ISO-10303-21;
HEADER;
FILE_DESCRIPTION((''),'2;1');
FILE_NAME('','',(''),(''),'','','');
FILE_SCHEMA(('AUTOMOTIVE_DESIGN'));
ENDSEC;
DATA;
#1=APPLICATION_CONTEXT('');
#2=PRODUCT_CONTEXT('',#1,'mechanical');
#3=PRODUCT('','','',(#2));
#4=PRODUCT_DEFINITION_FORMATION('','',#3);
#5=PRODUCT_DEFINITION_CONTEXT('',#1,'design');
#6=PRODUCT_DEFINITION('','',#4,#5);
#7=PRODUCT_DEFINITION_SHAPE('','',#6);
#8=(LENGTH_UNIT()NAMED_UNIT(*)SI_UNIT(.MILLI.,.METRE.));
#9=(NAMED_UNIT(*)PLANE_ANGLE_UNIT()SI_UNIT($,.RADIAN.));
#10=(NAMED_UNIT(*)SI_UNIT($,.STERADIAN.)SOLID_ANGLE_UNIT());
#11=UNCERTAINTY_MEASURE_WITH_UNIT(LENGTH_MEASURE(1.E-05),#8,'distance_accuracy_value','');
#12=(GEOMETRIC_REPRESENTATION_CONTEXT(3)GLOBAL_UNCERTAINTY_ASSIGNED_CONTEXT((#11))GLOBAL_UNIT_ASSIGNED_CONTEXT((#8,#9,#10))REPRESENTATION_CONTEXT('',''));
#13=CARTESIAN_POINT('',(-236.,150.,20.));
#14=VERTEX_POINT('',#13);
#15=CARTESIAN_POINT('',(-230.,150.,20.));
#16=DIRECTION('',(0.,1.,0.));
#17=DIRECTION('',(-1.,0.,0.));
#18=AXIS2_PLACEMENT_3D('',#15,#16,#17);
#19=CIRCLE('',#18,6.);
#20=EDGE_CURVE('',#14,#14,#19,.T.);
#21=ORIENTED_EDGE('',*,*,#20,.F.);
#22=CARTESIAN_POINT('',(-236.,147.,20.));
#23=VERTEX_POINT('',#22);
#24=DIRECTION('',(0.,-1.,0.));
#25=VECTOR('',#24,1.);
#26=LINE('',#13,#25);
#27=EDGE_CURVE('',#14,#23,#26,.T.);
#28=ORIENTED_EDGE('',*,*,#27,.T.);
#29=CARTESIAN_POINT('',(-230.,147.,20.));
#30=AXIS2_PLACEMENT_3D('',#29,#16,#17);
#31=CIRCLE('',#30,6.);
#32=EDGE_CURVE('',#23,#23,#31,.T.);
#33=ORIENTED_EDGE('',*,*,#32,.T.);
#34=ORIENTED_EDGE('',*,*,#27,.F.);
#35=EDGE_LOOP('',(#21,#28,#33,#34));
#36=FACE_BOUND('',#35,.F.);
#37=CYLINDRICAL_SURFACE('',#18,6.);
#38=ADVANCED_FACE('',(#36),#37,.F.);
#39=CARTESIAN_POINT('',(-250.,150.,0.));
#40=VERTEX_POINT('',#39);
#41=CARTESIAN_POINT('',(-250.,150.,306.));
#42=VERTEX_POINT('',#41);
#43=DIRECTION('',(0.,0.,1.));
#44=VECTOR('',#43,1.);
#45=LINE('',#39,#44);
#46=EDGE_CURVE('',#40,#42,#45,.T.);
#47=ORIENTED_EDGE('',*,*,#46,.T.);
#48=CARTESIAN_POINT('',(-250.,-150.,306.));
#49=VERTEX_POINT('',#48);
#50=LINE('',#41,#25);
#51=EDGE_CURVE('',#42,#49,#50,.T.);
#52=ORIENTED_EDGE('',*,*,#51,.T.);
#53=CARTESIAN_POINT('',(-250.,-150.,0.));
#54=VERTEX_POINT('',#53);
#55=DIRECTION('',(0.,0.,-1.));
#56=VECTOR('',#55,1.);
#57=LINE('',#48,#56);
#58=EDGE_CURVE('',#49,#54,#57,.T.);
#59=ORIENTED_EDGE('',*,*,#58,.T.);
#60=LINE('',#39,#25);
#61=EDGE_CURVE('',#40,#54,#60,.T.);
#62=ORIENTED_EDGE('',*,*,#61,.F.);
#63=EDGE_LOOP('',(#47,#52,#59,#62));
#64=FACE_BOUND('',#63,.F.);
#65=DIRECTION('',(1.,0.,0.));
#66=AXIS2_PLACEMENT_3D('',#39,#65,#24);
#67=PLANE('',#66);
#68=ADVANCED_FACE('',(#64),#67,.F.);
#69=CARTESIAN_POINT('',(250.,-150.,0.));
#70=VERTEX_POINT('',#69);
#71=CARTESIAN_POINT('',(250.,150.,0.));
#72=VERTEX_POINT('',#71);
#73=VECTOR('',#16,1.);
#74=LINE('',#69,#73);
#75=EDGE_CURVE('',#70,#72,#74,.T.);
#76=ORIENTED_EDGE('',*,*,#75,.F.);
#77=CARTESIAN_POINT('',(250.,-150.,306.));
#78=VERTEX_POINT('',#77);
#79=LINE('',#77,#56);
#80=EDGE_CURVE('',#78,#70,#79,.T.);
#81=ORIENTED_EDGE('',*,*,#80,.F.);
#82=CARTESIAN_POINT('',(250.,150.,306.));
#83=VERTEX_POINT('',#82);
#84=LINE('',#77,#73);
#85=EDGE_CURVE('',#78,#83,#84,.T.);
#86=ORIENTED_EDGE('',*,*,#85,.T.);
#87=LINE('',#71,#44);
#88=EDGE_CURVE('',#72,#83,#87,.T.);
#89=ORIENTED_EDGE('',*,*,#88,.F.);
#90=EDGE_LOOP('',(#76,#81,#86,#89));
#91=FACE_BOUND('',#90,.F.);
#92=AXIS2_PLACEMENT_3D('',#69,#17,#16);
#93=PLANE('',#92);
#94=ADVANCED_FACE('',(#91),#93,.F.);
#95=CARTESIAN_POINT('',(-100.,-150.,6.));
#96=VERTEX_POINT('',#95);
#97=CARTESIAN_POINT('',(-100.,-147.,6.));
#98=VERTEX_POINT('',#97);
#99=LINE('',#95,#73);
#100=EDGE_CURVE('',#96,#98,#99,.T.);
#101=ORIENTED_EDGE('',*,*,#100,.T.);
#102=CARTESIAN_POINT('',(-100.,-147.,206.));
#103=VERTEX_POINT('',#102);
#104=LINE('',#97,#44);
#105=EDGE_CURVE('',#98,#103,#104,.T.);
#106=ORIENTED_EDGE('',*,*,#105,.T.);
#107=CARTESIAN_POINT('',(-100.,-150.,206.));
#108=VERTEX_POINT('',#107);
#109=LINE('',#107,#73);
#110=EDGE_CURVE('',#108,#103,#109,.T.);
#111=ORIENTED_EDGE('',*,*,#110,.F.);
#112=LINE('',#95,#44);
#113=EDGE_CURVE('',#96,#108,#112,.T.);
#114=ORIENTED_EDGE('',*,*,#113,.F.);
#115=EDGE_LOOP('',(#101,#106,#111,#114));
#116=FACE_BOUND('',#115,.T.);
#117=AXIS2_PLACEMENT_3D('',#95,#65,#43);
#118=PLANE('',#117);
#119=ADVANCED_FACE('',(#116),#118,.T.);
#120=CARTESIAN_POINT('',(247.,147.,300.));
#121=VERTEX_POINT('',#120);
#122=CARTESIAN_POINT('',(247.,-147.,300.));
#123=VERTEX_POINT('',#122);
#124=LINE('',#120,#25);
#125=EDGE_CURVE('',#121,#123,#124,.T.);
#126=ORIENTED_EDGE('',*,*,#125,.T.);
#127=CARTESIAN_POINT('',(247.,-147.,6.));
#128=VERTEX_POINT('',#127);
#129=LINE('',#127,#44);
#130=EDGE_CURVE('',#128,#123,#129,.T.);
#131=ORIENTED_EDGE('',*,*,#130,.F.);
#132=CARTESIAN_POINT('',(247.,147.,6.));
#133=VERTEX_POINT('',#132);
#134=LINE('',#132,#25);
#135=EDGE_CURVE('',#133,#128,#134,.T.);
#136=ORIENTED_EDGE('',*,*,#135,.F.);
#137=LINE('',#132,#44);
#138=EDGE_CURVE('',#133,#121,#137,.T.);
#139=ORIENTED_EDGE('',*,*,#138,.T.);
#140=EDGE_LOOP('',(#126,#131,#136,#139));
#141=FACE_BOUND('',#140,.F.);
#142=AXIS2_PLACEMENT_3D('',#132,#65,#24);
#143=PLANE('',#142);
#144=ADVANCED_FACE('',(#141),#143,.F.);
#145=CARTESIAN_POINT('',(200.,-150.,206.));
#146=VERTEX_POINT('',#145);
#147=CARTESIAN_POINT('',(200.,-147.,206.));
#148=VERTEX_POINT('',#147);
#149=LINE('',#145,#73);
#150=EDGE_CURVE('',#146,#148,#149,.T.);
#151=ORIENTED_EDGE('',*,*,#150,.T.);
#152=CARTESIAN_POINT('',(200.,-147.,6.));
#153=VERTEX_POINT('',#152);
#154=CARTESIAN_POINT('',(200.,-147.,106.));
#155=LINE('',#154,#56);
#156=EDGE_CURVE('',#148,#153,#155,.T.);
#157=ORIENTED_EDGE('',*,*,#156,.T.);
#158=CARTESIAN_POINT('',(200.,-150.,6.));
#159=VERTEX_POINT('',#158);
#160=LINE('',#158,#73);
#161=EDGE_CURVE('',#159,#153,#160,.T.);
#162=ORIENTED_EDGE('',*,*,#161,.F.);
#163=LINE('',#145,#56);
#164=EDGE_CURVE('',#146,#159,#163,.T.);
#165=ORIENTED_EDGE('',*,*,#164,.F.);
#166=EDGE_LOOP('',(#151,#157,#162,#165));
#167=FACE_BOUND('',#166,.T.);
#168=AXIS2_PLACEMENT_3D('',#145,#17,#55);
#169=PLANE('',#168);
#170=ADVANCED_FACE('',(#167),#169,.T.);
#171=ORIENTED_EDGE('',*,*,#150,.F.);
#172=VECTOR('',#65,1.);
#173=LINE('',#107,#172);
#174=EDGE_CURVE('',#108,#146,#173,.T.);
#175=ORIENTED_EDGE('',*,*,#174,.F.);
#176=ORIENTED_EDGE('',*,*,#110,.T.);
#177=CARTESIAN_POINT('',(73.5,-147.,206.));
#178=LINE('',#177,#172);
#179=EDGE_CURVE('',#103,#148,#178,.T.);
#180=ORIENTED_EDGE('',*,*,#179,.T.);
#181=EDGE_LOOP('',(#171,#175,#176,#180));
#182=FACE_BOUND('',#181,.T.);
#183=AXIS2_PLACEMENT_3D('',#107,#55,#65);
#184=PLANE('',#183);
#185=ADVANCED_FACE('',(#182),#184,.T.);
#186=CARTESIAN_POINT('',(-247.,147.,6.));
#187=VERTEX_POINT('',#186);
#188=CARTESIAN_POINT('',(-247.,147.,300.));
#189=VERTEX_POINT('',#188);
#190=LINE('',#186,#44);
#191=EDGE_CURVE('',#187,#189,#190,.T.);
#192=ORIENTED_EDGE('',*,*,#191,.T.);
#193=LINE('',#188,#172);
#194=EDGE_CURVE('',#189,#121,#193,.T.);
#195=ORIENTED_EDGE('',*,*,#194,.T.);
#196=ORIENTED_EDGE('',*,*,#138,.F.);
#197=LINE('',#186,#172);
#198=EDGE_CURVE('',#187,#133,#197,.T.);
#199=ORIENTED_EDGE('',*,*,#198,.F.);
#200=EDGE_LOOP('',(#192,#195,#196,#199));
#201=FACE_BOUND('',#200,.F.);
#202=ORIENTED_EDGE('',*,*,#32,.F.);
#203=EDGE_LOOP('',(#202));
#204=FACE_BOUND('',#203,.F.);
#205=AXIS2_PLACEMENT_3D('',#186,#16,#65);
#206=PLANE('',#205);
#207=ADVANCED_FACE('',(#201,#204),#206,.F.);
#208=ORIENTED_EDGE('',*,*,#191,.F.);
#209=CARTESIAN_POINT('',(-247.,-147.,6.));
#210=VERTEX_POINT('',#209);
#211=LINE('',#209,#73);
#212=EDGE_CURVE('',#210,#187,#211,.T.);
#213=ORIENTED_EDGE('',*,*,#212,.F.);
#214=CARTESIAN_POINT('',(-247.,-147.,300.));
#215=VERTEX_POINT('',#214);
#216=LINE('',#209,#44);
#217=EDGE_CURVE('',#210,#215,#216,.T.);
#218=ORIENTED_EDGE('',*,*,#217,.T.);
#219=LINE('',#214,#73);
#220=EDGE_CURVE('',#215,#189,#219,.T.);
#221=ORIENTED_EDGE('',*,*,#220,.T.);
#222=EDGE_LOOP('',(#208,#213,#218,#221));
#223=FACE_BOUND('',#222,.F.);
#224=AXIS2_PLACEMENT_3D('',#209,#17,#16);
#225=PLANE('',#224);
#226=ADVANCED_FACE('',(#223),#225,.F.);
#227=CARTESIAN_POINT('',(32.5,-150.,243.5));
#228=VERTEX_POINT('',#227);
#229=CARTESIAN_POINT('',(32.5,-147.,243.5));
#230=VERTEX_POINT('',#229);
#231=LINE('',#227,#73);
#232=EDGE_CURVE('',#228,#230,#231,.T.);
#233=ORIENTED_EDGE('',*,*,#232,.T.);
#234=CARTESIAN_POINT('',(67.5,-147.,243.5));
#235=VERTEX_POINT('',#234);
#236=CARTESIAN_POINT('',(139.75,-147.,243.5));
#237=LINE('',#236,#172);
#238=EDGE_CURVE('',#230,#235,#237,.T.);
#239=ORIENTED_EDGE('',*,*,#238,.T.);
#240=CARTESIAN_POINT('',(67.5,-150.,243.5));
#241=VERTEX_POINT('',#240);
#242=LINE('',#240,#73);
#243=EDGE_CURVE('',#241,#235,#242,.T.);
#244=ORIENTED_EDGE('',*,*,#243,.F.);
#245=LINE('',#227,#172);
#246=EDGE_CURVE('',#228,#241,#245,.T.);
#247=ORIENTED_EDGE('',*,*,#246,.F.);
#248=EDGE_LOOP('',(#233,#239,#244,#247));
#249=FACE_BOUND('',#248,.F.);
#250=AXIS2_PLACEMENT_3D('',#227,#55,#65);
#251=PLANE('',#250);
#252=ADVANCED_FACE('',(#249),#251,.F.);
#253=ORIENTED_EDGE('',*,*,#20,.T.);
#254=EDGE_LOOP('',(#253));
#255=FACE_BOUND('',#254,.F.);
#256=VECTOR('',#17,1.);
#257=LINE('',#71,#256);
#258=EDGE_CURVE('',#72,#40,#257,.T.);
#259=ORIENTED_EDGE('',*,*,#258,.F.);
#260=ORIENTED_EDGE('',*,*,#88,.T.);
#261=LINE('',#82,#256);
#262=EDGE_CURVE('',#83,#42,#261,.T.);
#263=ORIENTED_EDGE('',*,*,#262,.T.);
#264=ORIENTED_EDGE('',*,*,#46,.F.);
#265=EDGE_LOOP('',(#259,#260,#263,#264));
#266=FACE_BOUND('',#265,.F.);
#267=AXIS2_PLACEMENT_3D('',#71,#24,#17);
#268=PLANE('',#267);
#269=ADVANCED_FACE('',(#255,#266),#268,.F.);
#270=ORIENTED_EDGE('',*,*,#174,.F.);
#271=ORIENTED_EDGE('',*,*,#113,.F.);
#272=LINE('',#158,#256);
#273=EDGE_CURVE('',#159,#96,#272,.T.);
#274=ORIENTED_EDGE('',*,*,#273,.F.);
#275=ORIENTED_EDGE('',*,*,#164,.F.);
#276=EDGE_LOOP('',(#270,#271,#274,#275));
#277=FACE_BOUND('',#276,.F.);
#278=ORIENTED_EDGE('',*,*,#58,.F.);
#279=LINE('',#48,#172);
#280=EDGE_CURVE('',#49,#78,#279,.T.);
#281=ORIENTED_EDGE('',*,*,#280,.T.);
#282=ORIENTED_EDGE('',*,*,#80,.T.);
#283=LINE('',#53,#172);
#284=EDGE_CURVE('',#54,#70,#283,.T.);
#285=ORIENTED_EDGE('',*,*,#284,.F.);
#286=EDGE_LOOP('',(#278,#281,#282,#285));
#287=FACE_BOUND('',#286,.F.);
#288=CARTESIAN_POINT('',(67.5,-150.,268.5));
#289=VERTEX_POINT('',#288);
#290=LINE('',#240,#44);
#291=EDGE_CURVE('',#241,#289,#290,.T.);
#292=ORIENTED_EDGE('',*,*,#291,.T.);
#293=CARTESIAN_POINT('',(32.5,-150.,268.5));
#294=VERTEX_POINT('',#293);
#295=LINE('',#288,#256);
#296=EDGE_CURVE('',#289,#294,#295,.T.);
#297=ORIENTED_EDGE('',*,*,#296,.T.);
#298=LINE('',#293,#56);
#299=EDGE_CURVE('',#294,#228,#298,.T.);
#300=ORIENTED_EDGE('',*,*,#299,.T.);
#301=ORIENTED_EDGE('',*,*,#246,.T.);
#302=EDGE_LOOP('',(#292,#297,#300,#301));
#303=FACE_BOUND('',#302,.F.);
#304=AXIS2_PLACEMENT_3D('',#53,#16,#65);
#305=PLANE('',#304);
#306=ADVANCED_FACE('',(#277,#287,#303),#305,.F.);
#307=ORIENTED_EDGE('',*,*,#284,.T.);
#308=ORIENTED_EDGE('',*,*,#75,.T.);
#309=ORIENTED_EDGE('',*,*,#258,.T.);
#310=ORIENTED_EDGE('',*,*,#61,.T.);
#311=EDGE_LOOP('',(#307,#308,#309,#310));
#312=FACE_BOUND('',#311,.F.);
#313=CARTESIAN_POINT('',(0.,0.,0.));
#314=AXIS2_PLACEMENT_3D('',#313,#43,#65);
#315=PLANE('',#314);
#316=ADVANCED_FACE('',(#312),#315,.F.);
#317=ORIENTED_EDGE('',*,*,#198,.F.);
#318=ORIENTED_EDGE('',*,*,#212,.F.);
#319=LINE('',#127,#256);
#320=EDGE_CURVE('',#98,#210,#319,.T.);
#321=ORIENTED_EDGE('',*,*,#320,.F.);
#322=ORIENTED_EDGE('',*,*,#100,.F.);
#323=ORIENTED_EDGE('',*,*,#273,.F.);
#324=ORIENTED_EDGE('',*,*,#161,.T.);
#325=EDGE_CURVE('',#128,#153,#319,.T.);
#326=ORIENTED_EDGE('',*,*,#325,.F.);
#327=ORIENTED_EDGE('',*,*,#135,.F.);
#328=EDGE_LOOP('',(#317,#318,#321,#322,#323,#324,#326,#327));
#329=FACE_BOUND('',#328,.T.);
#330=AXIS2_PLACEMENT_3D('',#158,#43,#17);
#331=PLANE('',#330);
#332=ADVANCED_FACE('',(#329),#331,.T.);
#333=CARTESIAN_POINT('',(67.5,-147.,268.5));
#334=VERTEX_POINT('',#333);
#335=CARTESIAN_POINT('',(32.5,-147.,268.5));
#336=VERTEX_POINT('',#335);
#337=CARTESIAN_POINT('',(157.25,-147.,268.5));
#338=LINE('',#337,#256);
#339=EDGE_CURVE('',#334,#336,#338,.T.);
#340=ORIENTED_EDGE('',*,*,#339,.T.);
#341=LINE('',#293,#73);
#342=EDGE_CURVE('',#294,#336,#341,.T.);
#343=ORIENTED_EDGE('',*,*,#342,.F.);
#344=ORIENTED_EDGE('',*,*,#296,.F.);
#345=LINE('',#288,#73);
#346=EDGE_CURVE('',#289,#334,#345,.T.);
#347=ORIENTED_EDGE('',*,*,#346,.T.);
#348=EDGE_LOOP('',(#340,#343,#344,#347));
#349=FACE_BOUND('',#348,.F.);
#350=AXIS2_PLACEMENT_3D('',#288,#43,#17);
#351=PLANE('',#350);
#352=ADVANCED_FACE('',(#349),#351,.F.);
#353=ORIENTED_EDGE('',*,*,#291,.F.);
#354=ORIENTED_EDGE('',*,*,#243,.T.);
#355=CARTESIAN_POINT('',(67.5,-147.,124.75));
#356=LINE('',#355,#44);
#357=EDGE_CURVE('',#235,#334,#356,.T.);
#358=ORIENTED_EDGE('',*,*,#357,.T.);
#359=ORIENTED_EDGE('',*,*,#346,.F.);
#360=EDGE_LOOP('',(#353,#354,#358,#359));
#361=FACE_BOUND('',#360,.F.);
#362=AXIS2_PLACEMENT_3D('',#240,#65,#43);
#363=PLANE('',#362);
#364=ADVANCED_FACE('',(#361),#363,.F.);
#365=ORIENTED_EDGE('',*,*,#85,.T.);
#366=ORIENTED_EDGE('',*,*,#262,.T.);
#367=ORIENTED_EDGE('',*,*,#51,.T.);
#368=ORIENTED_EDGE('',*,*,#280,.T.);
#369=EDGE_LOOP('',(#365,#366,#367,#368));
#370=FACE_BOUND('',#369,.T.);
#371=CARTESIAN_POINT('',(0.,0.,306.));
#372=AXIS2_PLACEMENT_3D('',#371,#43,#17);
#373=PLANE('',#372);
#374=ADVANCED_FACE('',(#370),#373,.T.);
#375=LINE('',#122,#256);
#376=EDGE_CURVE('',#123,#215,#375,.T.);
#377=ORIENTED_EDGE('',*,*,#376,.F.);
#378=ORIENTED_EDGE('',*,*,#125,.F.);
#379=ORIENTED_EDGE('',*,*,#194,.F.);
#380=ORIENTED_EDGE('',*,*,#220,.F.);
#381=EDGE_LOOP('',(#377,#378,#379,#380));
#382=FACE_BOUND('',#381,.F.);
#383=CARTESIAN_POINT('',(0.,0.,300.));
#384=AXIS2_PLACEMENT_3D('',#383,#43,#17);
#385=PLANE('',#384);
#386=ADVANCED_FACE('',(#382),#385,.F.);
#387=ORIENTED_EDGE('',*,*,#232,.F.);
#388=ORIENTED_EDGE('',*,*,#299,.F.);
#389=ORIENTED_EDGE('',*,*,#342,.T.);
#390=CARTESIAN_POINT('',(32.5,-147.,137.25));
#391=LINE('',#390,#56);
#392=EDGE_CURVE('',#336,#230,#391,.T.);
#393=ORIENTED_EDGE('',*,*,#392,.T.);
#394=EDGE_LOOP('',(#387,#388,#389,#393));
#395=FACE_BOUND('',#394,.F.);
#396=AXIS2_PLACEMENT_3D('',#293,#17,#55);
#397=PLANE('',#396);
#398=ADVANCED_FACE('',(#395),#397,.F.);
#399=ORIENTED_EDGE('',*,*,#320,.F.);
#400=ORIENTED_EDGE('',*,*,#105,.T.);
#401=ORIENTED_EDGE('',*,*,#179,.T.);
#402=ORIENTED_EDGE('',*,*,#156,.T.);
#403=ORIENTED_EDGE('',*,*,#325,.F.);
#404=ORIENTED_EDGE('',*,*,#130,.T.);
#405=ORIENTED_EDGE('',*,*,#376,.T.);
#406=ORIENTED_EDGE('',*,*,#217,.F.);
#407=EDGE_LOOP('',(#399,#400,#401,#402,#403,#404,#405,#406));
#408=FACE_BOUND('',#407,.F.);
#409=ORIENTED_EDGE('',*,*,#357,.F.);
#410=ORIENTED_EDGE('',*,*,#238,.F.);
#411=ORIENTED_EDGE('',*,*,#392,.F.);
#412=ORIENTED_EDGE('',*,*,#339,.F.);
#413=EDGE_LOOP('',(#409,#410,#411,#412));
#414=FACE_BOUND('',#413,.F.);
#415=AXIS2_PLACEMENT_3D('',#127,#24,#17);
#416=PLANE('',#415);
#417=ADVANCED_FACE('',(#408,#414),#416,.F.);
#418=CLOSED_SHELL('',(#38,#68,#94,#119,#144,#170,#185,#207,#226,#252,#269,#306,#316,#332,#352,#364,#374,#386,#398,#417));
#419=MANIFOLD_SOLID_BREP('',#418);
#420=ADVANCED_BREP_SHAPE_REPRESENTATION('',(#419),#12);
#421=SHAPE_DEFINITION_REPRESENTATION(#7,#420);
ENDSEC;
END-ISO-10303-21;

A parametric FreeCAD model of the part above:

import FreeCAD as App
import Part
import Sketcher

V = App.Vector

doc = App.newDocument("Part")
body = doc.addObject("PartDesign::Body", "Body")

sketch1 = doc.addObject("Sketcher::SketchObject", "Sketch")
body.addObject(sketch1)
sketch1.AttachmentSupport = (doc.XY_Plane, [""])
sketch1.MapMode = "FlatFace"
sketch1.addGeometry([
    Part.LineSegment(V(250, -150, 0), V(250, 150, 0)),
    Part.LineSegment(V(250, 150, 0), V(-250, 150, 0)),
    Part.LineSegment(V(-250, 150, 0), V(-250, -150, 0)),
    Part.LineSegment(V(-250, -150, 0), V(250, -150, 0)),
], False)
sketch1.addConstraint([
    Sketcher.Constraint("Coincident", 0, 2, 1, 1),
    Sketcher.Constraint("Coincident", 1, 2, 2, 1),
    Sketcher.Constraint("Coincident", 2, 2, 3, 1),
    Sketcher.Constraint("Coincident", 3, 2, 0, 1),
    Sketcher.Constraint("Vertical", 0),
    Sketcher.Constraint("Horizontal", 1),
    Sketcher.Constraint("Vertical", 2),
    Sketcher.Constraint("Horizontal", 3),
    Sketcher.Constraint("Symmetric", 0, 2, 2, 2, -1, 1),
    Sketcher.Constraint("DistanceX", 1, 2, 1, 1, 500.0),
    Sketcher.Constraint("DistanceY", 0, 1, 0, 2, 300.0),
])
pad1 = doc.addObject("PartDesign::Pad", "Pad")
body.addObject(pad1)
pad1.Profile = sketch1
pad1.Length = 6

sketch2 = doc.addObject("Sketcher::SketchObject", "Sketch001")
body.addObject(sketch2)
sketch2.AttachmentSupport = (doc.XY_Plane, [""])
sketch2.MapMode = "FlatFace"
sketch2.AttachmentOffset = App.Placement(V(0, 0, 6), App.Rotation())
sketch2.addGeometry([
    Part.LineSegment(V(-250, -150, 0), V(250, -150, 0)),
    Part.LineSegment(V(250, -150, 0), V(250, 150, 0)),
    Part.LineSegment(V(250, 150, 0), V(-250, 150, 0)),
    Part.LineSegment(V(-250, 150, 0), V(-250, -150, 0)),
    Part.LineSegment(V(247, 147, 0), V(247, -147, 0)),
    Part.LineSegment(V(247, -147, 0), V(-247, -147, 0)),
    Part.LineSegment(V(-247, -147, 0), V(-247, 147, 0)),
    Part.LineSegment(V(-247, 147, 0), V(247, 147, 0)),
], False)
sketch2.addConstraint([
    Sketcher.Constraint("Coincident", 0, 2, 1, 1),
    Sketcher.Constraint("Coincident", 1, 2, 2, 1),
    Sketcher.Constraint("Coincident", 2, 2, 3, 1),
    Sketcher.Constraint("Coincident", 3, 2, 0, 1),
    Sketcher.Constraint("Coincident", 4, 2, 5, 1),
    Sketcher.Constraint("Coincident", 5, 2, 6, 1),
    Sketcher.Constraint("Coincident", 6, 2, 7, 1),
    Sketcher.Constraint("Coincident", 7, 2, 4, 1),
    Sketcher.Constraint("Horizontal", 0),
    Sketcher.Constraint("Vertical", 1),
    Sketcher.Constraint("Horizontal", 2),
    Sketcher.Constraint("Vertical", 3),
    Sketcher.Constraint("Vertical", 4),
    Sketcher.Constraint("Horizontal", 5),
    Sketcher.Constraint("Vertical", 6),
    Sketcher.Constraint("Horizontal", 7),
    Sketcher.Constraint("Symmetric", 0, 2, 2, 2, -1, 1),
    Sketcher.Constraint("Symmetric", 4, 2, 6, 2, -1, 1),
    Sketcher.Constraint("DistanceX", 5, 2, 5, 1, 494.0),
    Sketcher.Constraint("DistanceY", 4, 2, 4, 1, 294.0),
    Sketcher.Constraint("DistanceX", 0, 1, 0, 2, 500.0),
    Sketcher.Constraint("DistanceY", 1, 1, 1, 2, 300.0),
])
pad2 = doc.addObject("PartDesign::Pad", "Pad001")
body.addObject(pad2)
pad2.Profile = sketch2
pad2.Length = 300

sketch3 = doc.addObject("Sketcher::SketchObject", "Sketch002")
body.addObject(sketch3)
sketch3.AttachmentSupport = (doc.XY_Plane, [""])
sketch3.MapMode = "FlatFace"
sketch3.AttachmentOffset = App.Placement(V(0, 0, 306), App.Rotation())
sketch3.addGeometry([
    Part.LineSegment(V(247, 147, 0), V(-247, 147, 0)),
    Part.LineSegment(V(-247, 147, 0), V(-247, -147, 0)),
    Part.LineSegment(V(-247, -147, 0), V(247, -147, 0)),
    Part.LineSegment(V(247, -147, 0), V(247, 147, 0)),
], False)
sketch3.addConstraint([
    Sketcher.Constraint("Coincident", 0, 2, 1, 1),
    Sketcher.Constraint("Coincident", 1, 2, 2, 1),
    Sketcher.Constraint("Coincident", 2, 2, 3, 1),
    Sketcher.Constraint("Coincident", 3, 2, 0, 1),
    Sketcher.Constraint("Horizontal", 0),
    Sketcher.Constraint("Vertical", 1),
    Sketcher.Constraint("Horizontal", 2),
    Sketcher.Constraint("Vertical", 3),
    Sketcher.Constraint("Symmetric", 0, 2, 2, 2, -1, 1),
    Sketcher.Constraint("DistanceX", 0, 2, 0, 1, 494.0),
    Sketcher.Constraint("DistanceY", 1, 2, 1, 1, 294.0),
])
pad3 = doc.addObject("PartDesign::Pad", "Pad002")
body.addObject(pad3)
pad3.Profile = sketch3
pad3.Length = 6
pad3.Reversed = True

sketch4 = doc.addObject("Sketcher::SketchObject", "Sketch003")
body.addObject(sketch4)
sketch4.AttachmentSupport = (doc.XZ_Plane, [""])
sketch4.MapMode = "FlatFace"
sketch4.AttachmentOffset = App.Placement(V(0, 0, 150), App.Rotation())
sketch4.addGeometry([
    Part.LineSegment(V(-100, 6, 0), V(200, 6, 0)),
    Part.LineSegment(V(200, 6, 0), V(200, 206, 0)),
    Part.LineSegment(V(200, 206, 0), V(-100, 206, 0)),
    Part.LineSegment(V(-100, 206, 0), V(-100, 6, 0)),
], False)
sketch4.addConstraint([
    Sketcher.Constraint("Coincident", 0, 2, 1, 1),
    Sketcher.Constraint("Coincident", 1, 2, 2, 1),
    Sketcher.Constraint("Coincident", 2, 2, 3, 1),
    Sketcher.Constraint("Coincident", 3, 2, 0, 1),
    Sketcher.Constraint("Horizontal", 0),
    Sketcher.Constraint("Vertical", 1),
    Sketcher.Constraint("Horizontal", 2),
    Sketcher.Constraint("Vertical", 3),
    Sketcher.Constraint("DistanceX", 0, 1, 0, 2, 300.0),
    Sketcher.Constraint("DistanceY", 1, 1, 1, 2, 200.0),
    Sketcher.Constraint("DistanceX", -1, 1, 0, 2, 200.0),
    Sketcher.Constraint("DistanceY", -1, 1, 0, 2, 6.0),
])
pocket1 = doc.addObject("PartDesign::Pocket", "Pocket")
body.addObject(pocket1)
pocket1.Profile = sketch4
pocket1.Length = 6

sketch5 = doc.addObject("Sketcher::SketchObject", "Sketch004")
body.addObject(sketch5)
sketch5.AttachmentSupport = (doc.XZ_Plane, [""])
sketch5.MapMode = "FlatFace"
sketch5.AttachmentOffset = App.Placement(V(0, 0, -150), App.Rotation())
sketch5.addGeometry(Part.Circle(V(-230, 20, 0), V(0, 0, 1), 6), False)
sketch5.addConstraint([
    Sketcher.Constraint("Diameter", 0, 12.0),
    Sketcher.Constraint("DistanceX", 0, 3, -1, 1, 230.0),
    Sketcher.Constraint("DistanceY", -1, 1, 0, 3, 20.0),
])
pocket2 = doc.addObject("PartDesign::Pocket", "Pocket001")
body.addObject(pocket2)
pocket2.Profile = sketch5
pocket2.Length = 6
pocket2.Reversed = True

sketch6 = doc.addObject("Sketcher::SketchObject", "Sketch005")
body.addObject(sketch6)
sketch6.AttachmentSupport = (doc.XZ_Plane, [""])
sketch6.MapMode = "FlatFace"
sketch6.AttachmentOffset = App.Placement(V(0, 0, 150), App.Rotation())
sketch6.addGeometry([
    Part.LineSegment(V(67.5, 243.5, 0), V(67.5, 268.5, 0)),
    Part.LineSegment(V(67.5, 268.5, 0), V(32.5, 268.5, 0)),
    Part.LineSegment(V(32.5, 268.5, 0), V(32.5, 243.5, 0)),
    Part.LineSegment(V(32.5, 243.5, 0), V(67.5, 243.5, 0)),
], False)
sketch6.addConstraint([
    Sketcher.Constraint("Coincident", 0, 2, 1, 1),
    Sketcher.Constraint("Coincident", 1, 2, 2, 1),
    Sketcher.Constraint("Coincident", 2, 2, 3, 1),
    Sketcher.Constraint("Coincident", 3, 2, 0, 1),
    Sketcher.Constraint("Vertical", 0),
    Sketcher.Constraint("Horizontal", 1),
    Sketcher.Constraint("Vertical", 2),
    Sketcher.Constraint("Horizontal", 3),
    Sketcher.Constraint("DistanceX", 1, 2, 1, 1, 35.0),
    Sketcher.Constraint("DistanceY", 0, 1, 0, 2, 25.0),
    Sketcher.Constraint("DistanceX", -1, 1, 0, 2, 67.5),
    Sketcher.Constraint("DistanceY", -1, 1, 0, 2, 268.5),
])
pocket3 = doc.addObject("PartDesign::Pocket", "Pocket002")
body.addObject(pocket3)
pocket3.Profile = sketch6
pocket3.Length = 6

doc.recompute()
